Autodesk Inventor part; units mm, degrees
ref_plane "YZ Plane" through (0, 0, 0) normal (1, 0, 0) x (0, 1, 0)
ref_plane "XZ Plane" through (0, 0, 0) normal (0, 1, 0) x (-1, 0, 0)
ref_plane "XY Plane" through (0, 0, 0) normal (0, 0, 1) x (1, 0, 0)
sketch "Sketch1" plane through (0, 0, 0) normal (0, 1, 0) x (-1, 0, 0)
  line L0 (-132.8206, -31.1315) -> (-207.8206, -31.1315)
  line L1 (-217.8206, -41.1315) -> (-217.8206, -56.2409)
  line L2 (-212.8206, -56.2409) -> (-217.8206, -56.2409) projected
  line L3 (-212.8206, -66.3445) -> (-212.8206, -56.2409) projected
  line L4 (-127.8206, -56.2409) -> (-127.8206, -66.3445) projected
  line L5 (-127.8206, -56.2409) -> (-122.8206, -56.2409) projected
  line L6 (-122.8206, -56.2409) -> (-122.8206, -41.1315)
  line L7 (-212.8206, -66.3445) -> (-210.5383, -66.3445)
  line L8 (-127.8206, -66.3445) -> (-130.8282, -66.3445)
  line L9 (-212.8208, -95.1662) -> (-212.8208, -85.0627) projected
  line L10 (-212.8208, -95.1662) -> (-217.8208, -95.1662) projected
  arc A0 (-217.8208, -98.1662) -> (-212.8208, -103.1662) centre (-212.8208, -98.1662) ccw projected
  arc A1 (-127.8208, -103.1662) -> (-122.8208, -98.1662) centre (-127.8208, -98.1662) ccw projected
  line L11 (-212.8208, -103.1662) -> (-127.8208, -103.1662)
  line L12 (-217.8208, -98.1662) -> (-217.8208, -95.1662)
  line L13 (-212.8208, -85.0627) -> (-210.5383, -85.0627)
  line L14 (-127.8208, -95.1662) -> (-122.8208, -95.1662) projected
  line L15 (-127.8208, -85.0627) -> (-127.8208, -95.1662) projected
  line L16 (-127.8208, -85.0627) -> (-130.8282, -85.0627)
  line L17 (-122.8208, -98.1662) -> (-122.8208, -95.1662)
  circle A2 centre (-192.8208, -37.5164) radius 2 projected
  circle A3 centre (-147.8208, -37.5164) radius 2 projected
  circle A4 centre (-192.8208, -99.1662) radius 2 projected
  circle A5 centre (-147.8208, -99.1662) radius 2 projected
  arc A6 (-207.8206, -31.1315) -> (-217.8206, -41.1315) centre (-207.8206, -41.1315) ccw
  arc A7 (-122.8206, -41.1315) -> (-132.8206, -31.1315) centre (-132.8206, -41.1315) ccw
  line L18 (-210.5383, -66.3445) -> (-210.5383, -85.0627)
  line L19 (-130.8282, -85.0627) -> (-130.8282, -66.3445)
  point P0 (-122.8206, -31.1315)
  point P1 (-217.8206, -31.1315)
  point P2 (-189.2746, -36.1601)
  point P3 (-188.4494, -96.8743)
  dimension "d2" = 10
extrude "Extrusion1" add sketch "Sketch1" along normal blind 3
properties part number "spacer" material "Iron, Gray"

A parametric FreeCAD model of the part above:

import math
import FreeCAD as App
import Part
import Sketcher
Q = App.Units.Quantity

doc = App.newDocument("Part")
body = doc.addObject("PartDesign::Body", "Body")

sketch1 = body.newObject("Sketcher::SketchObject", "Sketch")
sketch1.AttachmentSupport = (doc.getObject("XZ_Plane"), [""])
sketch1.MapMode = "FlatFace"
sketch1.addGeometry(Part.ArcOfCircle(Part.Circle(App.Vector(132.8, -41.1, 0), App.Vector(0, 0, 1), 10), math.radians(90), math.radians(180)), False)
sketch1.addGeometry(Part.LineSegment(App.Vector(132.8, -31.1, 0), App.Vector(207.8, -31.1, 0)), False)
sketch1.addGeometry(Part.ArcOfCircle(Part.Circle(App.Vector(207.8, -41.1, 0), App.Vector(0, 0, 1), 10), math.radians(0), math.radians(90)), False)
sketch1.addGeometry(Part.LineSegment(App.Vector(217.8, -41.1, 0), App.Vector(217.8, -56.2, 0)), False)
sketch1.addGeometry(Part.LineSegment(App.Vector(217.8, -56.2, 0), App.Vector(212.8, -56.2, 0)), False)
sketch1.addGeometry(Part.LineSegment(App.Vector(212.8, -56.2, 0), App.Vector(212.8, -66.3, 0)), False)
sketch1.addGeometry(Part.LineSegment(App.Vector(212.8, -66.3, 0), App.Vector(210.5, -66.3, 0)), False)
sketch1.addGeometry(Part.LineSegment(App.Vector(210.5, -66.3, 0), App.Vector(210.5, -85.1, 0)), False)
sketch1.addGeometry(Part.LineSegment(App.Vector(210.5, -85.1, 0), App.Vector(212.8, -85.1, 0)), False)
sketch1.addGeometry(Part.LineSegment(App.Vector(212.8, -85.1, 0), App.Vector(212.8, -95.2, 0)), False)
sketch1.addGeometry(Part.LineSegment(App.Vector(212.8, -95.2, 0), App.Vector(217.8, -95.2, 0)), False)
sketch1.addGeometry(Part.LineSegment(App.Vector(217.8, -95.2, 0), App.Vector(217.8, -98.2, 0)), False)
sketch1.addGeometry(Part.ArcOfCircle(Part.Circle(App.Vector(212.8, -98.2, 0), App.Vector(0, 0, 1), 5), math.radians(-90), math.radians(0)), False)
sketch1.addGeometry(Part.LineSegment(App.Vector(212.8, -103.2, 0), App.Vector(127.8, -103.2, 0)), False)
sketch1.addGeometry(Part.ArcOfCircle(Part.Circle(App.Vector(127.8, -98.2, 0), App.Vector(0, 0, 1), 5), math.radians(180), math.radians(270)), False)
sketch1.addGeometry(Part.LineSegment(App.Vector(122.8, -98.2, 0), App.Vector(122.8, -95.2, 0)), False)
sketch1.addGeometry(Part.LineSegment(App.Vector(122.8, -95.2, 0), App.Vector(127.8, -95.2, 0)), False)
sketch1.addGeometry(Part.LineSegment(App.Vector(127.8, -95.2, 0), App.Vector(127.8, -85.1, 0)), False)
sketch1.addGeometry(Part.LineSegment(App.Vector(127.8, -85.1, 0), App.Vector(130.8, -85.1, 0)), False)
sketch1.addGeometry(Part.LineSegment(App.Vector(130.8, -85.1, 0), App.Vector(130.8, -66.3, 0)), False)
sketch1.addGeometry(Part.LineSegment(App.Vector(130.8, -66.3, 0), App.Vector(127.8, -66.3, 0)), False)
sketch1.addGeometry(Part.LineSegment(App.Vector(127.8, -66.3, 0), App.Vector(127.8, -56.2, 0)), False)
sketch1.addGeometry(Part.LineSegment(App.Vector(127.8, -56.2, 0), App.Vector(122.8, -56.2, 0)), False)
sketch1.addGeometry(Part.LineSegment(App.Vector(122.8, -56.2, 0), App.Vector(122.8, -41.1, 0)), False)
sketch1.addGeometry(Part.Circle(App.Vector(192.8, -99.2, 0), App.Vector(0, 0, 1), 2), False)
sketch1.addGeometry(Part.Circle(App.Vector(147.8, -99.2, 0), App.Vector(0, 0, 1), 2), False)
sketch1.addGeometry(Part.Circle(App.Vector(192.8, -37.5, 0), App.Vector(0, 0, 1), 2), False)
sketch1.addGeometry(Part.Circle(App.Vector(147.8, -37.5, 0), App.Vector(0, 0, 1), 2), False)
sketch1.addConstraint(Sketcher.Constraint("Tangent", 0, 1, 1, 1))
sketch1.addConstraint(Sketcher.Constraint("Tangent", 1, 2, 2, 2))
sketch1.addConstraint(Sketcher.Constraint("Tangent", 2, 1, 3, 1))
sketch1.addConstraint(Sketcher.Constraint("Coincident", 3, 2, 4, 1))
sketch1.addConstraint(Sketcher.Constraint("Coincident", 4, 2, 5, 1))
sketch1.addConstraint(Sketcher.Constraint("Coincident", 5, 2, 6, 1))
sketch1.addConstraint(Sketcher.Constraint("Coincident", 6, 2, 7, 1))
sketch1.addConstraint(Sketcher.Constraint("Coincident", 7, 2, 8, 1))
sketch1.addConstraint(Sketcher.Constraint("Coincident", 8, 2, 9, 1))
sketch1.addConstraint(Sketcher.Constraint("Coincident", 9, 2, 10, 1))
sketch1.addConstraint(Sketcher.Constraint("Coincident", 10, 2, 11, 1))
sketch1.addConstraint(Sketcher.Constraint("Tangent", 11, 2, 12, 2))
sketch1.addConstraint(Sketcher.Constraint("Tangent", 12, 1, 13, 1))
sketch1.addConstraint(Sketcher.Constraint("Tangent", 13, 2, 14, 2))
sketch1.addConstraint(Sketcher.Constraint("Tangent", 14, 1, 15, 1))
sketch1.addConstraint(Sketcher.Constraint("Coincident", 15, 2, 16, 1))
sketch1.addConstraint(Sketcher.Constraint("Coincident", 16, 2, 17, 1))
sketch1.addConstraint(Sketcher.Constraint("Coincident", 17, 2, 18, 1))
sketch1.addConstraint(Sketcher.Constraint("Coincident", 18, 2, 19, 1))
sketch1.addConstraint(Sketcher.Constraint("Coincident", 19, 2, 20, 1))
sketch1.addConstraint(Sketcher.Constraint("Coincident", 20, 2, 21, 1))
sketch1.addConstraint(Sketcher.Constraint("Coincident", 21, 2, 22, 1))
sketch1.addConstraint(Sketcher.Constraint("Coincident", 22, 2, 23, 1))
sketch1.addConstraint(Sketcher.Constraint("Tangent", 23, 2, 0, 2))
sketch1.addConstraint(Sketcher.Constraint("Horizontal", 1))
sketch1.addConstraint(Sketcher.Constraint("Vertical", 3))
sketch1.addConstraint(Sketcher.Constraint("Horizontal", 4))
sketch1.addConstraint(Sketcher.Constraint("Vertical", 5))
sketch1.addConstraint(Sketcher.Constraint("Horizontal", 6))
sketch1.addConstraint(Sketcher.Constraint("Vertical", 7))
sketch1.addConstraint(Sketcher.Constraint("Horizontal", 8))
sketch1.addConstraint(Sketcher.Constraint("Vertical", 9))
sketch1.addConstraint(Sketcher.Constraint("Horizontal", 10))
sketch1.addConstraint(Sketcher.Constraint("Vertical", 11))
sketch1.addConstraint(Sketcher.Constraint("Horizontal", 13))
sketch1.addConstraint(Sketcher.Constraint("Vertical", 15))
sketch1.addConstraint(Sketcher.Constraint("Horizontal", 16))
sketch1.addConstraint(Sketcher.Constraint("Vertical", 17))
sketch1.addConstraint(Sketcher.Constraint("Horizontal", 18))
sketch1.addConstraint(Sketcher.Constraint("Vertical", 19))
sketch1.addConstraint(Sketcher.Constraint("Horizontal", 20))
sketch1.addConstraint(Sketcher.Constraint("Vertical", 21))
sketch1.addConstraint(Sketcher.Constraint("Horizontal", 22))
sketch1.addConstraint(Sketcher.Constraint("Vertical", 23))
sketch1.addConstraint(Sketcher.Constraint("Equal", 0, 2))
sketch1.addConstraint(Sketcher.Constraint("Equal", 12, 14))
sketch1.addConstraint(Sketcher.Constraint("Equal", 24, 25))
sketch1.addConstraint(Sketcher.Constraint("Equal", 25, 26))
sketch1.addConstraint(Sketcher.Constraint("Equal", 26, 27))
sketch1.addConstraint(Sketcher.Constraint("Horizontal", 24, 3, 25, 3))
sketch1.addConstraint(Sketcher.Constraint("Horizontal", 26, 3, 27, 3))
sketch1.addConstraint(Sketcher.Constraint("Horizontal", 10, 2, 15, 2))
sketch1.addConstraint(Sketcher.Constraint("Horizontal", 8, 2, 17, 2))
sketch1.addConstraint(Sketcher.Constraint("Horizontal", 6, 2, 19, 2))
sketch1.addConstraint(Sketcher.Constraint("Horizontal", 4, 2, 21, 2))
sketch1.addConstraint(Sketcher.Constraint("Vertical", 24, 3, 26, 3))
sketch1.addConstraint(Sketcher.Constraint("Vertical", 25, 3, 27, 3))
sketch1.addConstraint(Sketcher.Constraint("Vertical", 12, 3, 4, 2))
sketch1.addConstraint(Sketcher.Constraint("Vertical", 5, 2, 8, 2))
sketch1.addConstraint(Sketcher.Constraint("Vertical", 3, 2, 10, 2))
sketch1.addConstraint(Sketcher.Constraint("Vertical", 13, 2, 16, 2))
sketch1.addConstraint(Sketcher.Constraint("Equal", 16, 22))
sketch1.addConstraint(Sketcher.Constraint("Equal", 5, 9))
sketch1.addConstraint(Sketcher.Constraint("Radius", 0, Q("10 mm")))
sketch1.addConstraint(Sketcher.Constraint("Radius", 12, Q("5 mm")))
sketch1.addConstraint(Sketcher.Constraint("Diameter", 24, Q("4 mm")))
sketch1.addConstraint(Sketcher.Constraint("DistanceX", 1, 1, 1, 2, Q("75 mm")))
sketch1.addConstraint(Sketcher.Constraint("DistanceX", 13, 2, 13, 1, Q("85 mm")))
sketch1.addConstraint(Sketcher.Constraint("DistanceY", 11, 2, 11, 1, Q("3 mm")))
sketch1.addConstraint(Sketcher.Constraint("DistanceX", 24, 3, 12, 3, Q("20 mm")))
sketch1.addConstraint(Sketcher.Constraint("DistanceY", 24, 3, 12, 3, Q("1 mm")))
sketch1.addConstraint(Sketcher.Constraint("DistanceX", 14, 3, 25, 3, Q("20 mm")))
sketch1.addConstraint(Sketcher.Constraint("DistanceX", 6, 2, 6, 1, Q("2.2823 mm")))
sketch1.addConstraint(Sketcher.Constraint("DistanceX", 18, 1, 18, 2, Q("3.0074 mm")))
sketch1.addConstraint(Sketcher.Constraint("DistanceY", 3, 2, 3, 1, Q("15.1094 mm")))
sketch1.addConstraint(Sketcher.Constraint("DistanceY", 5, 2, 5, 1, Q("10.1036 mm")))
sketch1.addConstraint(Sketcher.Constraint("DistanceY", 7, 2, 7, 1, Q("18.7182 mm")))
sketch1.addConstraint(Sketcher.Constraint("DistanceY", 3, 2, -1, 1, Q("56.241 mm")))
sketch1.addConstraint(Sketcher.Constraint("DistanceY", 2, 3, 26, 3, Q("3.615 mm")))
sketch1.addConstraint(Sketcher.Constraint("DistanceX", -1, 1, 0, 3, Q("132.8206 mm")))
pad1 = body.newObject("PartDesign::Pad", "Pad")
pad1.Profile = sketch1
pad1.Length = 3
pad1.Reversed = True

doc.recompute()
